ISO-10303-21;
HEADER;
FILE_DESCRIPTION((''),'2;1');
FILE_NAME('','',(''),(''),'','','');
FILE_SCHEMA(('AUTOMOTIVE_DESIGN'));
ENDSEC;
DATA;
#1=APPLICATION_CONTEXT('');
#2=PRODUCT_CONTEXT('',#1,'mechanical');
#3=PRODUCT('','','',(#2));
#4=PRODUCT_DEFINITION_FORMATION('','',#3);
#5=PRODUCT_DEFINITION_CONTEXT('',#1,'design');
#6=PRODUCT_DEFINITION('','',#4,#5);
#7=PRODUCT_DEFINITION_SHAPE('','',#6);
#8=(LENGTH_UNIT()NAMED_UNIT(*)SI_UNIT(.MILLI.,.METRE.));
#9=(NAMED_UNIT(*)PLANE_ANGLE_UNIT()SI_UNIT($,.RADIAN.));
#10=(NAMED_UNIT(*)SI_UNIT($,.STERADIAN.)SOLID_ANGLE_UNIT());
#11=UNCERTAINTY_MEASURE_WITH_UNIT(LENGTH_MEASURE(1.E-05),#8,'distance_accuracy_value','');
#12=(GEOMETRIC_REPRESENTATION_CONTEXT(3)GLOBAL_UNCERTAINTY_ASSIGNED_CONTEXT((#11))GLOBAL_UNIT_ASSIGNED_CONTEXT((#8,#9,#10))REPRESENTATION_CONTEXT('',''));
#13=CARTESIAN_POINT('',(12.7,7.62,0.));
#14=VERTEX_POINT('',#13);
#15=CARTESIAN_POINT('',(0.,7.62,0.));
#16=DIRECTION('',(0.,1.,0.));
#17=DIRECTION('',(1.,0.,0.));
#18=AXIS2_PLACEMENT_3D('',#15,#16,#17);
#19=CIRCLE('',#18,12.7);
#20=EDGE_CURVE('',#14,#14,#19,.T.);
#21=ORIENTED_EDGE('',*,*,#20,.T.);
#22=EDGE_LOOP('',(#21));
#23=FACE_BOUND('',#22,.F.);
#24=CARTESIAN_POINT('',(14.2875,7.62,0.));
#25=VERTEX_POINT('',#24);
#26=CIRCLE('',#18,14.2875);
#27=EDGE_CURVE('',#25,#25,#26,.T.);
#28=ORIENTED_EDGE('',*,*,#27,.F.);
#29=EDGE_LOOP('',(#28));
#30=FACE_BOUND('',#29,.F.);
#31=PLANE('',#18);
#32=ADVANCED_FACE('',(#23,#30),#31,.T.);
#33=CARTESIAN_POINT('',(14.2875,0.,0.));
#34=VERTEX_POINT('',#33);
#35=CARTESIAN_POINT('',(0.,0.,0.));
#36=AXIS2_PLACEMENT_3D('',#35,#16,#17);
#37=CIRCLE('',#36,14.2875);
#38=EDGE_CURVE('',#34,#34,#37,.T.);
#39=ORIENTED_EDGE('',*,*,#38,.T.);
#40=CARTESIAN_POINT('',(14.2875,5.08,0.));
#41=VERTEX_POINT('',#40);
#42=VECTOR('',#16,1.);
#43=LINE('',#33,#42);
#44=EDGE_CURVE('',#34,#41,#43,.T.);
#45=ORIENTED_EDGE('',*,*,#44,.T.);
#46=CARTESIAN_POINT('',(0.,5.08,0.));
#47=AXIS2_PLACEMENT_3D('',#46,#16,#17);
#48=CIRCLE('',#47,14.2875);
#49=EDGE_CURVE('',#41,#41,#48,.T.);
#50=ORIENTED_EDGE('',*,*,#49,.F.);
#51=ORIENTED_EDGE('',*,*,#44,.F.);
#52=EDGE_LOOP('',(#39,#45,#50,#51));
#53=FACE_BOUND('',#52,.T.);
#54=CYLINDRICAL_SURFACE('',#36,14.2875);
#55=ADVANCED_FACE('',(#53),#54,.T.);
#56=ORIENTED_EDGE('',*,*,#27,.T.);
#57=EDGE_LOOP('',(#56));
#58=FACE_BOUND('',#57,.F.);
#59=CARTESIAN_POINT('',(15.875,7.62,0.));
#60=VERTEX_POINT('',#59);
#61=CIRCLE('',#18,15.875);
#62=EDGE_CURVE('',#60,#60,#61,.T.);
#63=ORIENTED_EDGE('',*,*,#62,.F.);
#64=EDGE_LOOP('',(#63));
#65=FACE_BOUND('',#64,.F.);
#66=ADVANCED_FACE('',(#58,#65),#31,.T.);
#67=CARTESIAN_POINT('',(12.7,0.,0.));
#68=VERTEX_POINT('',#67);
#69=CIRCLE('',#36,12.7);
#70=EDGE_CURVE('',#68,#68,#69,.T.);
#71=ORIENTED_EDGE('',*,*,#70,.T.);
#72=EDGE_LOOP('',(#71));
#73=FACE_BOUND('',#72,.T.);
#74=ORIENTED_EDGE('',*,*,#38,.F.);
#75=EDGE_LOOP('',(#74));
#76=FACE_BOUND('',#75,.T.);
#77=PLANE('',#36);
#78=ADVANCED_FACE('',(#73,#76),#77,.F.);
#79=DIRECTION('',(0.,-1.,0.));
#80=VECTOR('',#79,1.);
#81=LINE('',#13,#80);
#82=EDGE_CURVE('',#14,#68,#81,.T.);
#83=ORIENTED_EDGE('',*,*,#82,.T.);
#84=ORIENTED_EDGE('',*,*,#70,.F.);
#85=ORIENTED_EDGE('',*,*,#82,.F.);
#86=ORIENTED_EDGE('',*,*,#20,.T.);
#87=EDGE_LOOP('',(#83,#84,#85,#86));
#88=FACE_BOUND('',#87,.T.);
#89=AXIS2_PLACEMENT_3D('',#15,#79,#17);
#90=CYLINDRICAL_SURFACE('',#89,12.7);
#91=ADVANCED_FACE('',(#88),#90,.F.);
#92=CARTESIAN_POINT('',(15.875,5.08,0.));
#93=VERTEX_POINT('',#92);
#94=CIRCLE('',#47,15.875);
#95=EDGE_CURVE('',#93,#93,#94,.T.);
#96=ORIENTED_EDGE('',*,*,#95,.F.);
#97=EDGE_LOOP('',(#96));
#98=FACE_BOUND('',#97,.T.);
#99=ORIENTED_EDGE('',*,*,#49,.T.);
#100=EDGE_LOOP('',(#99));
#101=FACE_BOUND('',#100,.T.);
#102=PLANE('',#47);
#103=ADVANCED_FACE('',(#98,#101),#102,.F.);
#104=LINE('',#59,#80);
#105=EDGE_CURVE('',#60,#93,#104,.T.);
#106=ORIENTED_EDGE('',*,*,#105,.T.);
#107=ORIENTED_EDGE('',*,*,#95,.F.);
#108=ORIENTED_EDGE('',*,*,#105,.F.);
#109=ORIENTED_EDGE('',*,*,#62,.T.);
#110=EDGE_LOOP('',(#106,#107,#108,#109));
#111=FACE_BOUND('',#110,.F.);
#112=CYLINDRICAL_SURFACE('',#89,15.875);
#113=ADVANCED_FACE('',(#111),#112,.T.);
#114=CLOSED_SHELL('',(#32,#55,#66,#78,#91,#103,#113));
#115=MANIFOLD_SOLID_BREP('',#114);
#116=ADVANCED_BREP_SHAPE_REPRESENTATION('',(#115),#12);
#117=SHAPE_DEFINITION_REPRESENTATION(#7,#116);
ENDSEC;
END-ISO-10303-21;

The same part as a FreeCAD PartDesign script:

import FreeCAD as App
import Part
import Sketcher

V = App.Vector
Q = App.Units.Quantity


def add_polygon(sketch, points):
    """Adds a closed chain of lines whose ends are joined by coincident constraints."""
    first, n = sketch.GeometryCount, len(points)
    for a, b in zip(points, points[1:] + points[:1]):
        sketch.addGeometry(Part.LineSegment(App.Vector(*a, 0), App.Vector(*b, 0)), False)
    for i in range(n):
        sketch.addConstraint(Sketcher.Constraint("Coincident", first + i, 2, first + (i + 1) % n, 1))

doc = App.newDocument("Part")
body = doc.addObject("PartDesign::Body", "Body")

# Sketch on XY plane
sketch1 = doc.addObject("Sketcher::SketchObject", "Sketch")
body.addObject(sketch1)
sketch1.AttachmentSupport = (doc.XY_Plane, [""])
sketch1.MapMode = "FlatFace"
add_polygon(sketch1, [(12.7, 0), (14.2875, 0), (14.2875, 5.08), (15.875, 5.08), (15.875, 7.62), (12.7, 7.62)])  # lines 0-5
sketch1.addConstraint(Sketcher.Constraint("Horizontal", 0))
sketch1.addConstraint(Sketcher.Constraint("Vertical", 1))
sketch1.addConstraint(Sketcher.Constraint("Horizontal", 2))
sketch1.addConstraint(Sketcher.Constraint("Vertical", 3))
sketch1.addConstraint(Sketcher.Constraint("Horizontal", 4))
sketch1.addConstraint(Sketcher.Constraint("Vertical", 5))
sketch1.addConstraint(Sketcher.Constraint("PointOnObject", 0, 2, -1))
sketch1.addConstraint(Sketcher.Constraint("Equal", 0, 2))
sketch1.addConstraint(Sketcher.Constraint("DistanceY", 1, 1, 1, 2, Q("0.2 in")))
sketch1.addConstraint(Sketcher.Constraint("DistanceX", -1, 1, 4, 2, Q("0.5 in")))
sketch1.addConstraint(Sketcher.Constraint("DistanceY", 3, 1, 3, 2, Q("0.1 in")))
sketch1.addConstraint(Sketcher.Constraint("DistanceX", -1, 1, 0, 2, Q("0.5625 in")))
revolution = doc.addObject("PartDesign::Revolution", "Revolution")
body.addObject(revolution)
revolution.Profile = sketch1
revolution.ReferenceAxis = (sketch1, ["V_Axis"])
revolution.Angle = 360

doc.recompute()
